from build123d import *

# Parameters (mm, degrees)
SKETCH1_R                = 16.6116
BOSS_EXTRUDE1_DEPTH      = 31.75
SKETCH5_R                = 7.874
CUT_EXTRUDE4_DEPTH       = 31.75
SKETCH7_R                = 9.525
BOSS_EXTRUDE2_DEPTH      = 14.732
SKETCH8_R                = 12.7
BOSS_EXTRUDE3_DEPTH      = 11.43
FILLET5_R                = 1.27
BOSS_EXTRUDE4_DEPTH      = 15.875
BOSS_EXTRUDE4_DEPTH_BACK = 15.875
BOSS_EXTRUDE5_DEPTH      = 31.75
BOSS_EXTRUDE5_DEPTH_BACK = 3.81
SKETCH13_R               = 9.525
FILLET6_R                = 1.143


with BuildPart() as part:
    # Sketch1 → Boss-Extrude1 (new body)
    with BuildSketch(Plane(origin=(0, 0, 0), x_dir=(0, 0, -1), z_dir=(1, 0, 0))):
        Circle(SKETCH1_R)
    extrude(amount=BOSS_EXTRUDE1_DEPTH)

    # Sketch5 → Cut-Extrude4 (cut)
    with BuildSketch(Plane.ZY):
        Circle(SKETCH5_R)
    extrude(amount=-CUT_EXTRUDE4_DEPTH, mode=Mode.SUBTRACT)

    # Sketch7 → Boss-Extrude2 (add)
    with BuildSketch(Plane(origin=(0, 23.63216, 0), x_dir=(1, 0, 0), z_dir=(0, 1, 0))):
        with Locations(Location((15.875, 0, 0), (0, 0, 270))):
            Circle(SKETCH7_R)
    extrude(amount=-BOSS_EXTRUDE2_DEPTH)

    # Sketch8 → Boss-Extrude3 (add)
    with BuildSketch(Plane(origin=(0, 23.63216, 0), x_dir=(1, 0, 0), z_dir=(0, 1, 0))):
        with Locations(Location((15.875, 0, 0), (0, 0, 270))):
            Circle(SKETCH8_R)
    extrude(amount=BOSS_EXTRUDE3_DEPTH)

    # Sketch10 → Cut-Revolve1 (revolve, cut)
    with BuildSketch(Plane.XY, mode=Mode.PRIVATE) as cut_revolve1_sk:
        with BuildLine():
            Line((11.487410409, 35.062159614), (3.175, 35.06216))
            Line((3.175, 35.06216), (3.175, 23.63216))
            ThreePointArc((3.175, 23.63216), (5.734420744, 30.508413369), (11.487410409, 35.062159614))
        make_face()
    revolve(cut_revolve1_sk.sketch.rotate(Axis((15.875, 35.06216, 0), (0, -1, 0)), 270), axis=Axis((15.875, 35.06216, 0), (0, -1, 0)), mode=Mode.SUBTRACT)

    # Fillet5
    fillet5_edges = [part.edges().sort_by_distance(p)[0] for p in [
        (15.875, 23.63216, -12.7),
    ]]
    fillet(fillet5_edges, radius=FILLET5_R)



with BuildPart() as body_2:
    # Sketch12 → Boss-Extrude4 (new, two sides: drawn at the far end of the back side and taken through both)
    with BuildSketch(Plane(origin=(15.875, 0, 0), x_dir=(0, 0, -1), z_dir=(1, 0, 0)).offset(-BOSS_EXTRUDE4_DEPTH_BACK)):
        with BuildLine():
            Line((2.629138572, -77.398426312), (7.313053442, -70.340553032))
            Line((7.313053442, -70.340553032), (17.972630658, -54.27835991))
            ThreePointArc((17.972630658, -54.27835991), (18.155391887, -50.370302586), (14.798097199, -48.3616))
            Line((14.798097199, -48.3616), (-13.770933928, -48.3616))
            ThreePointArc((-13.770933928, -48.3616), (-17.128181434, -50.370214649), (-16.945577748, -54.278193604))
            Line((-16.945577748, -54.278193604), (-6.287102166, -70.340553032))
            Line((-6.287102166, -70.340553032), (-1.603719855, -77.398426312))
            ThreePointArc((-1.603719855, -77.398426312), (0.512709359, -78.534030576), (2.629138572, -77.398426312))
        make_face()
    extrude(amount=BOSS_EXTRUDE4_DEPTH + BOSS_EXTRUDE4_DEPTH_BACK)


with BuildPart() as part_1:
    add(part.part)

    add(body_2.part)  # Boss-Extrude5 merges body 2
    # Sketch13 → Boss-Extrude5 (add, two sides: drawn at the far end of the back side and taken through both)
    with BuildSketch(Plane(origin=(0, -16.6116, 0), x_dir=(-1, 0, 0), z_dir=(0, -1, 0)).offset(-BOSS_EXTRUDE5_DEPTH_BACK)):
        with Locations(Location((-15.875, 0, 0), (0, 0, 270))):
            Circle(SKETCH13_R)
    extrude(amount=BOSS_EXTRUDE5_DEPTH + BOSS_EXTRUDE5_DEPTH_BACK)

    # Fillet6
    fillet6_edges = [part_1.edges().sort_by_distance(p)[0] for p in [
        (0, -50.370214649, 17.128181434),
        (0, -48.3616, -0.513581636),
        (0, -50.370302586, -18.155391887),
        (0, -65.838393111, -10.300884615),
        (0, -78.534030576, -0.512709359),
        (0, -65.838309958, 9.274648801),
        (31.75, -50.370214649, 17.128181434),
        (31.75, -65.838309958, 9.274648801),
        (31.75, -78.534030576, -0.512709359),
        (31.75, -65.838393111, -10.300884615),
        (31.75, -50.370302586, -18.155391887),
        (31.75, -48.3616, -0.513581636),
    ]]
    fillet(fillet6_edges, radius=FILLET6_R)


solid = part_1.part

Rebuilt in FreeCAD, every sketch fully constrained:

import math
import FreeCAD as App
import Part
import Sketcher

V = App.Vector
Q = App.Units.Quantity


def edges_at(feature, points):
    """Names of the edges that pass closest to the given points."""
    edges = feature.Shape.Edges
    near = lambda p: min(range(len(edges)), key=lambda i: edges[i].distToShape(Part.Vertex(*p))[0])
    return sorted({f"Edge{near(p) + 1}" for p in points})

doc = App.newDocument("Part")
body = doc.addObject("PartDesign::Body", "Body")

# Sketch on YZ plane
sketch1 = body.newObject("Sketcher::SketchObject", "Sketch")
sketch1.AttachmentSupport = (doc.getObject("YZ_Plane"), [""])
sketch1.MapMode = "FlatFace"
sketch1.addGeometry(Part.Circle(V(0, 0, 0), V(0, 0, 1), 17), False)
sketch1.addConstraint([
    Sketcher.Constraint("Coincident", 0, 3, -1, 1),
    Sketcher.Constraint("Diameter", 0, Q("1.308 in")),
])
pad1 = body.newObject("PartDesign::Pad", "Pad")
pad1.Profile = sketch1
pad1.Length = Q("1.25 in")

# Sketch on YZ plane
sketch2 = body.newObject("Sketcher::SketchObject", "Sketch001")
sketch2.AttachmentSupport = (doc.getObject("YZ_Plane"), [""])
sketch2.MapMode = "FlatFace"
sketch2.addGeometry(Part.Circle(V(0, 0, 0), V(0, 0, 1), 8), False)
sketch2.addConstraint([
    Sketcher.Constraint("Coincident", 0, 3, -1, 1),
    Sketcher.Constraint("Diameter", 0, Q("0.62 in")),
])
pocket1 = body.newObject("PartDesign::Pocket", "Pocket")
pocket1.Profile = sketch2
pocket1.Length = Q("1.25 in")
pocket1.Reversed = True

# Sketch on XZ plane
sketch3 = body.newObject("Sketcher::SketchObject", "Sketch002")
sketch3.AttachmentSupport = (doc.getObject("XZ_Plane"), [""])
sketch3.MapMode = "FlatFace"
sketch3.AttachmentOffset = App.Placement(V(0, 0, -0.9304 * 25.4), App.Rotation())
sketch3.addGeometry(Part.Circle(V(16, 0, 0), V(0, 0, 1), 10), False)
sketch3.addConstraint([
    Sketcher.Constraint("PointOnObject", 0, 3, -1),
    Sketcher.Constraint("Diameter", 0, Q("0.75 in")),
    Sketcher.Constraint("DistanceX", -1, 1, 0, 3, Q("0.625 in")),
])
pad2 = body.newObject("PartDesign::Pad", "Pad001")
pad2.Profile = sketch3
pad2.Length = Q("0.58 in")

# Sketch on XZ plane
sketch4 = body.newObject("Sketcher::SketchObject", "Sketch003")
sketch4.AttachmentSupport = (doc.getObject("XZ_Plane"), [""])
sketch4.MapMode = "FlatFace"
sketch4.AttachmentOffset = App.Placement(V(0, 0, -0.9304 * 25.4), App.Rotation())
sketch4.addGeometry(Part.Circle(V(16, 0, 0), V(0, 0, 1), 13), False)
sketch4.addConstraint([
    Sketcher.Constraint("PointOnObject", 0, 3, -1),
    Sketcher.Constraint("Diameter", 0, Q("1 in")),
    Sketcher.Constraint("DistanceX", -1, 1, 0, 3, Q("0.625 in")),
])
pad3 = body.newObject("PartDesign::Pad", "Pad002")
pad3.Profile = sketch4
pad3.Length = Q("0.45 in")
pad3.Reversed = True

# Sketch on XY plane
sketch5 = body.newObject("Sketcher::SketchObject", "Sketch004")
sketch5.AttachmentSupport = (doc.getObject("XY_Plane"), [""])
sketch5.MapMode = "FlatFace"
sketch5.addGeometry([
    Part.LineSegment(V(11, 35, 0), V(3, 35, 0)),
    Part.LineSegment(V(3, 35, 0), V(3, 24, 0)),
    Part.ArcOfCircle(Part.Circle(V(17, 22, 0), V(0, 0, 1), 14), math.radians(113), math.radians(175)),
], False)
sketch5.addGeometry(Part.LineSegment(V(16, 35, 0), V(16, 22, 0)), True)  # axis
sketch5.addConstraint([
    Sketcher.Constraint("Coincident", 0, 2, 1, 1),
    Sketcher.Constraint("Coincident", 1, 2, 2, 2),
    Sketcher.Constraint("Coincident", 2, 1, 0, 1),
    Sketcher.Constraint("Horizontal", 0),
    Sketcher.Constraint("Vertical", 1),
    Sketcher.Constraint("Vertical", 3),
    Sketcher.Constraint("Horizontal", 2, 1, 3, 1),
    Sketcher.Constraint("Horizontal", 2, 3, 3, 2),
    Sketcher.Constraint("DistanceY", 1, 2, 1, 1, Q("0.45 in")),
    Sketcher.Constraint("DistanceX", 0, 2, 3, 1, Q("0.5 in")),
    Sketcher.Constraint("DistanceX", -1, 1, 0, 2, Q("0.125 in")),
    Sketcher.Constraint("Radius", 2, 13.632918),
    Sketcher.Constraint("DistanceY", -1, 1, 0, 2, Q("1.3804 in")),
    Sketcher.Constraint("DistanceX", 0, 2, 0, 1, 8.31241),
])
groove = body.newObject("PartDesign::Groove", "Groove")
groove.Profile = sketch5
groove.ReferenceAxis = (sketch5, ["Axis0"])
groove.Angle = 360
doc.recompute()

fillet = body.newObject("PartDesign::Fillet", "Fillet")
fillet.Base = (groove, edges_at(groove, [(15.875, 23.632, -12.7)]))
fillet.Radius = Q("0.05 in")
body2 = doc.addObject("PartDesign::Body", "Body001")

# Sketch on YZ plane
sketch6 = body2.newObject("Sketcher::SketchObject", "Sketch005")
sketch6.AttachmentSupport = (doc.getObject("YZ_Plane001"), [""])
sketch6.MapMode = "FlatFace"
sketch6.AttachmentOffset = App.Placement(V(0, 0, 0.625 * 25.4), App.Rotation())
sketch6.addGeometry([
    Part.LineSegment(V(-77.4, -2.6, 0), V(-54.3, -18, 0)),  # 0
    Part.ArcOfCircle(Part.Circle(V(-52.2, -14.8, 0), V(0, 0, 1), 3.8), math.radians(-124), math.radians(0)),  # 1
    Part.LineSegment(V(-48.4, -14.8, 0), V(-48.4, 13.8, 0)),  # 2
    Part.ArcOfCircle(Part.Circle(V(-52.2, 13.8, 0), V(0, 0, 1), 3.8), math.radians(0), math.radians(124)),  # 3
    Part.LineSegment(V(-54.3, 16.9, 0), V(-70.3, 6.3, 0)),  # 4
    Part.LineSegment(V(-70.3, 6.3, 0), V(-77.4, 1.6, 0)),  # 5
    Part.ArcOfCircle(Part.Circle(V(-76, -0.5, 0), V(0, 0, 1), 2.5), math.radians(124), math.radians(236)),  # 6
], False)
sketch6.addConstraint([
    Sketcher.Constraint("Tangent", 0, 2, 1, 1),
    Sketcher.Constraint("Tangent", 1, 2, 2, 1),
    Sketcher.Constraint("Tangent", 2, 2, 3, 1),
    Sketcher.Constraint("Tangent", 3, 2, 4, 1),
    Sketcher.Constraint("Coincident", 4, 2, 5, 1),
    Sketcher.Constraint("Tangent", 5, 2, 6, 1),
    Sketcher.Constraint("Coincident", 6, 2, 0, 1),
    Sketcher.Constraint("Vertical", 2),
    Sketcher.Constraint("Equal", 1, 3),
    Sketcher.Constraint("Parallel", 4, 5),
    Sketcher.Constraint("Vertical", 5, 2, 6, 2),
    Sketcher.Constraint("Radius", 6, Q("0.1 in")),
    Sketcher.Constraint("Radius", 1, Q("0.15 in")),
    Sketcher.Constraint("Angle", 0, Q("-33.57 deg")),
    Sketcher.Constraint("DistanceX", 1, 3, -1, 1, Q("2.054 in")),
    Sketcher.Constraint("Distance", 5, 8.470398),
    Sketcher.Constraint("DistanceY", 2, 1, 2, 2, 28.569031),
    Sketcher.Constraint("DistanceY", 1, 3, 4, 2, 21.085199),
    Sketcher.Constraint("DistanceY", 6, 3, -1, 1, 0.512709),
])
pad4 = body2.newObject("PartDesign::Pad", "Pad003")
pad4.Profile = sketch6
pad4.Type = "TwoLengths"
pad4.Length = Q("0.625 in")
pad4.Length2 = Q("0.625 in")
body.AllowCompound = True
doc.recompute()

boolean = body.newObject("PartDesign::Boolean", "Boolean")
boolean.Type = "Fuse"
boolean.addObjects([body2])

# Sketch on XZ plane
sketch7 = body.newObject("Sketcher::SketchObject", "Sketch006")
sketch7.AttachmentSupport = (doc.getObject("XZ_Plane"), [""])
sketch7.MapMode = "FlatFace"
sketch7.AttachmentOffset = App.Placement(V(0, 0, 0.654 * 25.4), App.Rotation())
sketch7.addGeometry(Part.Circle(V(16, 0, 0), V(0, 0, 1), 10), False)
sketch7.addConstraint([
    Sketcher.Constraint("PointOnObject", 0, 3, -1),
    Sketcher.Constraint("Diameter", 0, Q("0.75 in")),
    Sketcher.Constraint("DistanceX", -1, 1, 0, 3, Q("0.625 in")),
])
pad5 = body.newObject("PartDesign::Pad", "Pad004")
pad5.Profile = sketch7
pad5.Type = "TwoLengths"
pad5.Length = Q("1.25 in")
pad5.Length2 = Q("0.15 in")
doc.recompute()

fillet2 = body.newObject("PartDesign::Fillet", "Fillet001")
fillet2.Base = (pad5, edges_at(pad5, [
    (0, -50.37, 17.128),
    (0, -48.362, -0.514),
    (0, -50.37, -18.155),
    (0, -65.838, -10.301),
    (0, -78.534, -0.513),
    (0, -62.309, 11.616),
    (31.75, -50.37, 17.128),
    (31.75, -62.309, 11.616),
    (31.75, -78.534, -0.513),
    (31.75, -65.838, -10.301),
    (31.75, -50.37, -18.155),
    (31.75, -48.362, -0.514),
]))
fillet2.Radius = Q("0.045 in")

doc.recompute()
